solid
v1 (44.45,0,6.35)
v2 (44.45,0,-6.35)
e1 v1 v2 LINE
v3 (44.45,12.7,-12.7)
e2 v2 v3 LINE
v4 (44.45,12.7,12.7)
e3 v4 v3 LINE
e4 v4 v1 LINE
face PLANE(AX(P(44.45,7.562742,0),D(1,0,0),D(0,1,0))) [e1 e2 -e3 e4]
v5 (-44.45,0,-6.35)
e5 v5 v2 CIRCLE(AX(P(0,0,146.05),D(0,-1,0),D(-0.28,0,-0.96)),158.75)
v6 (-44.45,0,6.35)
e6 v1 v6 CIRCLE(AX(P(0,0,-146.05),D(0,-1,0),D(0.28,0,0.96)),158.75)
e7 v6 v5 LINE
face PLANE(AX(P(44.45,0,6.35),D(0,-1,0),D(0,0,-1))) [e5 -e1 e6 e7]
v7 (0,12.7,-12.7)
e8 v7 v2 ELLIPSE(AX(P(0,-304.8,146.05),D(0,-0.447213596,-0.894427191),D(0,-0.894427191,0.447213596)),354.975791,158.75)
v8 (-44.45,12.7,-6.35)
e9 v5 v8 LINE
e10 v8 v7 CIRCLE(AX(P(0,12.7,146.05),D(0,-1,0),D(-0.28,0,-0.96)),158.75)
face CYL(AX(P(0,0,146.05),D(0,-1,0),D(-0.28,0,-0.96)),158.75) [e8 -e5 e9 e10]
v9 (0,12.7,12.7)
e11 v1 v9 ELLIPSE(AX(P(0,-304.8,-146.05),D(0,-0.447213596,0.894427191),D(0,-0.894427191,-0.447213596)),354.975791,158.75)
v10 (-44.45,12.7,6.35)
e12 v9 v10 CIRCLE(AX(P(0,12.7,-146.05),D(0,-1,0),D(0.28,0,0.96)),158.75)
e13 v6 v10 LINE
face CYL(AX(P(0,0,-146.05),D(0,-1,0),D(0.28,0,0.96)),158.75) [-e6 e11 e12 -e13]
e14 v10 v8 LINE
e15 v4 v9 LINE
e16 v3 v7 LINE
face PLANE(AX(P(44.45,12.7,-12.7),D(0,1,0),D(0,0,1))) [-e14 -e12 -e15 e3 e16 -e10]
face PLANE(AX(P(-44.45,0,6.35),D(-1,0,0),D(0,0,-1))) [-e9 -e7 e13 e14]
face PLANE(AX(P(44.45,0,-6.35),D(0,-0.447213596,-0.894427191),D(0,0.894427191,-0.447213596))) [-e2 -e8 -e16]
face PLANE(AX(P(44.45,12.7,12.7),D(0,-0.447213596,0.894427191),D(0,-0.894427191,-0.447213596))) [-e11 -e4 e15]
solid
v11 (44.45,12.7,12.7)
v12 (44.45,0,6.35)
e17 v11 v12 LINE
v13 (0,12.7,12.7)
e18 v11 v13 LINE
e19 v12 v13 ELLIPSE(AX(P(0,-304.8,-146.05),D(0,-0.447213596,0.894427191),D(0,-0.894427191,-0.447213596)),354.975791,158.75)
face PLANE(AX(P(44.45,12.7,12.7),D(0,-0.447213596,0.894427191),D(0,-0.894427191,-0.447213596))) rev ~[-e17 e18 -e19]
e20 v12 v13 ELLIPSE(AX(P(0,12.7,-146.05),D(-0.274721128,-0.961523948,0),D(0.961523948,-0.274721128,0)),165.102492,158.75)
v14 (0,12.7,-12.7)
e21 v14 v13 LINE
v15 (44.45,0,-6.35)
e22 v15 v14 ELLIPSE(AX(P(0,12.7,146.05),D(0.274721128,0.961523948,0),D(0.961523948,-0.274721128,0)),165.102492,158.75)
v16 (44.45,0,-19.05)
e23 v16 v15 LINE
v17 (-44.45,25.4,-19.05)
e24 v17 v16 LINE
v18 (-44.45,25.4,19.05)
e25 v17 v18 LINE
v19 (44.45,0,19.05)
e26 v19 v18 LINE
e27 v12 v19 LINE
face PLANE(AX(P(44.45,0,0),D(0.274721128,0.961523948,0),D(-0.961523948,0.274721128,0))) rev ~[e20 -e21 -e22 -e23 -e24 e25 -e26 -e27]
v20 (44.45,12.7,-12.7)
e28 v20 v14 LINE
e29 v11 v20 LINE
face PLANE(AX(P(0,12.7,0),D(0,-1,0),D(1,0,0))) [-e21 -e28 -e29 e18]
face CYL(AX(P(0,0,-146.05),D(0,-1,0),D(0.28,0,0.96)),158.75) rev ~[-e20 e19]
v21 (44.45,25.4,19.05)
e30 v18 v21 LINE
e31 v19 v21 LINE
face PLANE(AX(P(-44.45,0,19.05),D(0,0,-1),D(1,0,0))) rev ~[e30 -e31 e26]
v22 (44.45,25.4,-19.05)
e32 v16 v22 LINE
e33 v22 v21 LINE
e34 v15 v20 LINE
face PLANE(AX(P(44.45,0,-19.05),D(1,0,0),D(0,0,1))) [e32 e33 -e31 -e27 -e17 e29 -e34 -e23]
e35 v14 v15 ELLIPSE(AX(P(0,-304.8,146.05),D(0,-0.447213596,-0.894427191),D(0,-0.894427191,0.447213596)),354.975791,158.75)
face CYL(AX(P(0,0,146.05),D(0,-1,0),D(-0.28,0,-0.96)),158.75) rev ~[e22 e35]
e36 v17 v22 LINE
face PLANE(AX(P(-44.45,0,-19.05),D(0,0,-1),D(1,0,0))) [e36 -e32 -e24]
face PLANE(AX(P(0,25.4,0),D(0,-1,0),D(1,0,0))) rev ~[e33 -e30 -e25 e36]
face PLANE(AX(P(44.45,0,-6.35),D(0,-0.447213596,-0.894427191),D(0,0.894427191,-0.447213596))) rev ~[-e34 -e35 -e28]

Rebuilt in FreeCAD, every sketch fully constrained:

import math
import FreeCAD as App
import Part
import Sketcher
from FreeCAD import Vector
Q = App.Units.Quantity


def add_polygon(sketch, points):
    """Adds a closed chain of lines whose ends are joined by coincident constraints."""
    first, n = sketch.GeometryCount, len(points)
    for a, b in zip(points, points[1:] + points[:1]):
        sketch.addGeometry(Part.LineSegment(App.Vector(*a, 0), App.Vector(*b, 0)), False)
    for i in range(n):
        sketch.addConstraint(Sketcher.Constraint("Coincident", first + i, 2, first + (i + 1) % n, 1))

doc = App.newDocument("Part")
body = doc.addObject("PartDesign::Body", "Body")

sketch1 = body.newObject("Sketcher::SketchObject", "Sketch")
sketch1.AttachmentSupport = (doc.getObject("XZ_Plane"), [""])
sketch1.MapMode = "FlatFace"
add_polygon(sketch1, [(-44.45, 19.05), (-44.45, -19.05), (44.45, -19.05), (44.45, 19.05)])
sketch1.addConstraint([
    Sketcher.Constraint("Vertical", 0),
    Sketcher.Constraint("Horizontal", 1),
    Sketcher.Constraint("Vertical", 2),
    Sketcher.Constraint("Horizontal", 3),
    Sketcher.Constraint("Symmetric", 0, 2, 2, 2, -1, 1),
    Sketcher.Constraint("DistanceX", 1, 1, 1, 2, Q("3.5 in")),
    Sketcher.Constraint("DistanceY", 0, 2, 0, 1, Q("1.5 in")),
])
pad1 = body.newObject("PartDesign::Pad", "Pad")
pad1.Profile = sketch1
pad1.Length = Q("1 in")
pad1.Reversed = True

sketch2 = body.newObject("Sketcher::SketchObject", "Sketch001")
sketch2.AttachmentSupport = (doc.getObject("XZ_Plane"), [""])
sketch2.MapMode = "FlatFace"
sketch2.addGeometry([
    Part.LineSegment(Vector(44.45, -6.35, 0), Vector(44.45, 6.35, 0)),
    Part.ArcOfCircle(Part.Circle(Vector(0, -146.05, 0), Vector(0, 0, 1), 158.75), math.radians(73.739795), math.radians(106.260205)),
    Part.LineSegment(Vector(-44.45, 6.35, 0), Vector(-44.45, -6.35, 0)),
    Part.ArcOfCircle(Part.Circle(Vector(0, 146.05, 0), Vector(0, 0, 1), 158.75), math.radians(-106.260205), math.radians(-73.739795)),
], False)
sketch2.addConstraint([
    Sketcher.Constraint("Coincident", 0, 2, 1, 1),
    Sketcher.Constraint("Coincident", 1, 2, 2, 1),
    Sketcher.Constraint("Coincident", 2, 2, 3, 1),
    Sketcher.Constraint("Coincident", 3, 2, 0, 1),
    Sketcher.Constraint("Vertical", 0),
    Sketcher.Constraint("Vertical", 2),
    Sketcher.Constraint("Equal", 1, 3),
    Sketcher.Constraint("Symmetric", 1, 3, 3, 3, -1, 1),
    Sketcher.Constraint("Symmetric", 0, 2, 1, 2, -2),
    Sketcher.Constraint("Radius", 1, Q("6.25 in")),
    Sketcher.Constraint("DistanceY", 0, 1, 0, 2, Q("0.5 in")),
    Sketcher.Constraint("DistanceY", 1, 3, 0, 2, Q("6 in")),
])
pocket1 = body.newObject("PartDesign::Pocket", "Pocket")
pocket1.Profile = sketch2
pocket1.Length = Q("0.5 in")

sketch3 = body.newObject("Sketcher::SketchObject", "Sketch002")
sketch3.AttachmentSupport = (doc.getObject("XY_Plane"), [""])
sketch3.MapMode = "FlatFace"
add_polygon(sketch3, [(-44.45, 0), (44.45, 0), (-44.45, 25.4)])
sketch3.addConstraint([
    Sketcher.Constraint("Horizontal", 0),
    Sketcher.Constraint("Vertical", 2),
    Sketcher.Constraint("Symmetric", 0, 2, 2, 2, -1, 1),
    Sketcher.Constraint("DistanceY", 2, 2, 2, 1, Q("1 in")),
    Sketcher.Constraint("DistanceX", 0, 1, 0, 2, Q("3.5 in")),
])
pocket2 = body.newObject("PartDesign::Pocket", "Pocket001")
pocket2.Profile = sketch3
pocket2.Type = "ThroughAll"
pocket2.Midplane = True

sketch4 = body.newObject("Sketcher::SketchObject", "Sketch003")
sketch4.AttachmentSupport = (doc.getObject("YZ_Plane"), [""])
sketch4.MapMode = "FlatFace"
sketch4.AttachmentOffset = App.Placement(Vector(0, 0, 1.75 * 25.4), App.Rotation())
add_polygon(sketch4, [(12.7, 6.35), (12.7, 12.7), (0, 6.35)])
add_polygon(sketch4, [(12.7, -12.7), (12.7, -6.35), (0, -6.35)])
sketch4.addConstraint([
    Sketcher.Constraint("Vertical", 0),
    Sketcher.Constraint("Horizontal", 2),
    Sketcher.Constraint("Vertical", 3),
    Sketcher.Constraint("Horizontal", 4),
    Sketcher.Constraint("Symmetric", 1, 2, 4, 2, -1, 1),
    Sketcher.Constraint("Symmetric", 0, 2, 5, 2, -1),
    Sketcher.Constraint("PointOnObject", 1, 2, -2),
    Sketcher.Constraint("DistanceX", 2, 1, 2, 2, Q("0.5 in")),
    Sketcher.Constraint("DistanceY", 5, 2, 0, 2, Q("1 in")),
    Sketcher.Constraint("DistanceY", 0, 1, 0, 2, Q("0.25 in")),
])
pocket3 = body.newObject("PartDesign::Pocket", "Pocket002")
pocket3.Profile = sketch4
pocket3.Length = Q("2 in")
body2 = doc.addObject("PartDesign::Body", "Body001")

sketch5 = body2.newObject("Sketcher::SketchObject", "Sketch004")
sketch5.AttachmentSupport = (doc.getObject("YZ_Plane001"), [""])
sketch5.MapMode = "FlatFace"
sketch5.AttachmentOffset = App.Placement(Vector(0, 0, 1.75 * 25.4), App.Rotation())
add_polygon(sketch5, [(12.7, -12.7), (12.7, 12.7), (0, 6.35), (0, -6.35)])
sketch5.addConstraint([
    Sketcher.Constraint("Vertical", 0),
    Sketcher.Constraint("Vertical", 2),
    Sketcher.Constraint("Symmetric", 1, 2, 2, 2, -1, 1),
    Sketcher.Constraint("Equal", 1, 3),
    Sketcher.Constraint("DistanceY", 0, 1, 0, 2, Q("1 in")),
    Sketcher.Constraint("DistanceY", 2, 2, 2, 1, Q("0.5 in")),
    Sketcher.Constraint("DistanceX", -1, 1, 0, 2, Q("0.5 in")),
])
pad2 = body2.newObject("PartDesign::Pad", "Pad001")
pad2.Profile = sketch5
pad2.Length = Q("1.75 in")
pad2.Reversed = True

sketch6 = body2.newObject("Sketcher::SketchObject", "Sketch005")
sketch6.AttachmentSupport = (doc.getObject("XZ_Plane001"), [""])
sketch6.MapMode = "FlatFace"
sketch6.addGeometry([
    Part.LineSegment(Vector(44.45, -6.35, 0), Vector(44.45, 6.35, 0)),
    Part.ArcOfCircle(Part.Circle(Vector(0, -146.05, 0), Vector(0, 0, 1), 158.75), math.radians(73.739795), math.radians(106.260205)),
    Part.LineSegment(Vector(-44.45, 6.35, 0), Vector(-44.45, -6.35, 0)),
    Part.ArcOfCircle(Part.Circle(Vector(0, 146.05, 0), Vector(0, 0, 1), 158.75), math.radians(-106.260205), math.radians(-73.739795)),
], False)
sketch6.addConstraint([
    Sketcher.Constraint("Coincident", 0, 2, 1, 1),
    Sketcher.Constraint("Coincident", 1, 2, 2, 1),
    Sketcher.Constraint("Coincident", 2, 2, 3, 1),
    Sketcher.Constraint("Coincident", 3, 2, 0, 1),
    Sketcher.Constraint("Vertical", 0),
    Sketcher.Constraint("Vertical", 2),
    Sketcher.Constraint("Equal", 1, 3),
    Sketcher.Constraint("Symmetric", 1, 3, 3, 3, -1, 1),
    Sketcher.Constraint("Symmetric", 0, 2, 1, 2, -2),
    Sketcher.Constraint("Radius", 1, Q("6.25 in")),
    Sketcher.Constraint("DistanceY", 0, 1, 0, 2, Q("0.5 in")),
    Sketcher.Constraint("DistanceY", 1, 3, 0, 2, Q("6 in")),
])
pad3 = body2.newObject("PartDesign::Pad", "Pad002")
pad3.Profile = sketch6
pad3.Length = Q("0.5 in")
pad3.Reversed = True

doc.recompute()
